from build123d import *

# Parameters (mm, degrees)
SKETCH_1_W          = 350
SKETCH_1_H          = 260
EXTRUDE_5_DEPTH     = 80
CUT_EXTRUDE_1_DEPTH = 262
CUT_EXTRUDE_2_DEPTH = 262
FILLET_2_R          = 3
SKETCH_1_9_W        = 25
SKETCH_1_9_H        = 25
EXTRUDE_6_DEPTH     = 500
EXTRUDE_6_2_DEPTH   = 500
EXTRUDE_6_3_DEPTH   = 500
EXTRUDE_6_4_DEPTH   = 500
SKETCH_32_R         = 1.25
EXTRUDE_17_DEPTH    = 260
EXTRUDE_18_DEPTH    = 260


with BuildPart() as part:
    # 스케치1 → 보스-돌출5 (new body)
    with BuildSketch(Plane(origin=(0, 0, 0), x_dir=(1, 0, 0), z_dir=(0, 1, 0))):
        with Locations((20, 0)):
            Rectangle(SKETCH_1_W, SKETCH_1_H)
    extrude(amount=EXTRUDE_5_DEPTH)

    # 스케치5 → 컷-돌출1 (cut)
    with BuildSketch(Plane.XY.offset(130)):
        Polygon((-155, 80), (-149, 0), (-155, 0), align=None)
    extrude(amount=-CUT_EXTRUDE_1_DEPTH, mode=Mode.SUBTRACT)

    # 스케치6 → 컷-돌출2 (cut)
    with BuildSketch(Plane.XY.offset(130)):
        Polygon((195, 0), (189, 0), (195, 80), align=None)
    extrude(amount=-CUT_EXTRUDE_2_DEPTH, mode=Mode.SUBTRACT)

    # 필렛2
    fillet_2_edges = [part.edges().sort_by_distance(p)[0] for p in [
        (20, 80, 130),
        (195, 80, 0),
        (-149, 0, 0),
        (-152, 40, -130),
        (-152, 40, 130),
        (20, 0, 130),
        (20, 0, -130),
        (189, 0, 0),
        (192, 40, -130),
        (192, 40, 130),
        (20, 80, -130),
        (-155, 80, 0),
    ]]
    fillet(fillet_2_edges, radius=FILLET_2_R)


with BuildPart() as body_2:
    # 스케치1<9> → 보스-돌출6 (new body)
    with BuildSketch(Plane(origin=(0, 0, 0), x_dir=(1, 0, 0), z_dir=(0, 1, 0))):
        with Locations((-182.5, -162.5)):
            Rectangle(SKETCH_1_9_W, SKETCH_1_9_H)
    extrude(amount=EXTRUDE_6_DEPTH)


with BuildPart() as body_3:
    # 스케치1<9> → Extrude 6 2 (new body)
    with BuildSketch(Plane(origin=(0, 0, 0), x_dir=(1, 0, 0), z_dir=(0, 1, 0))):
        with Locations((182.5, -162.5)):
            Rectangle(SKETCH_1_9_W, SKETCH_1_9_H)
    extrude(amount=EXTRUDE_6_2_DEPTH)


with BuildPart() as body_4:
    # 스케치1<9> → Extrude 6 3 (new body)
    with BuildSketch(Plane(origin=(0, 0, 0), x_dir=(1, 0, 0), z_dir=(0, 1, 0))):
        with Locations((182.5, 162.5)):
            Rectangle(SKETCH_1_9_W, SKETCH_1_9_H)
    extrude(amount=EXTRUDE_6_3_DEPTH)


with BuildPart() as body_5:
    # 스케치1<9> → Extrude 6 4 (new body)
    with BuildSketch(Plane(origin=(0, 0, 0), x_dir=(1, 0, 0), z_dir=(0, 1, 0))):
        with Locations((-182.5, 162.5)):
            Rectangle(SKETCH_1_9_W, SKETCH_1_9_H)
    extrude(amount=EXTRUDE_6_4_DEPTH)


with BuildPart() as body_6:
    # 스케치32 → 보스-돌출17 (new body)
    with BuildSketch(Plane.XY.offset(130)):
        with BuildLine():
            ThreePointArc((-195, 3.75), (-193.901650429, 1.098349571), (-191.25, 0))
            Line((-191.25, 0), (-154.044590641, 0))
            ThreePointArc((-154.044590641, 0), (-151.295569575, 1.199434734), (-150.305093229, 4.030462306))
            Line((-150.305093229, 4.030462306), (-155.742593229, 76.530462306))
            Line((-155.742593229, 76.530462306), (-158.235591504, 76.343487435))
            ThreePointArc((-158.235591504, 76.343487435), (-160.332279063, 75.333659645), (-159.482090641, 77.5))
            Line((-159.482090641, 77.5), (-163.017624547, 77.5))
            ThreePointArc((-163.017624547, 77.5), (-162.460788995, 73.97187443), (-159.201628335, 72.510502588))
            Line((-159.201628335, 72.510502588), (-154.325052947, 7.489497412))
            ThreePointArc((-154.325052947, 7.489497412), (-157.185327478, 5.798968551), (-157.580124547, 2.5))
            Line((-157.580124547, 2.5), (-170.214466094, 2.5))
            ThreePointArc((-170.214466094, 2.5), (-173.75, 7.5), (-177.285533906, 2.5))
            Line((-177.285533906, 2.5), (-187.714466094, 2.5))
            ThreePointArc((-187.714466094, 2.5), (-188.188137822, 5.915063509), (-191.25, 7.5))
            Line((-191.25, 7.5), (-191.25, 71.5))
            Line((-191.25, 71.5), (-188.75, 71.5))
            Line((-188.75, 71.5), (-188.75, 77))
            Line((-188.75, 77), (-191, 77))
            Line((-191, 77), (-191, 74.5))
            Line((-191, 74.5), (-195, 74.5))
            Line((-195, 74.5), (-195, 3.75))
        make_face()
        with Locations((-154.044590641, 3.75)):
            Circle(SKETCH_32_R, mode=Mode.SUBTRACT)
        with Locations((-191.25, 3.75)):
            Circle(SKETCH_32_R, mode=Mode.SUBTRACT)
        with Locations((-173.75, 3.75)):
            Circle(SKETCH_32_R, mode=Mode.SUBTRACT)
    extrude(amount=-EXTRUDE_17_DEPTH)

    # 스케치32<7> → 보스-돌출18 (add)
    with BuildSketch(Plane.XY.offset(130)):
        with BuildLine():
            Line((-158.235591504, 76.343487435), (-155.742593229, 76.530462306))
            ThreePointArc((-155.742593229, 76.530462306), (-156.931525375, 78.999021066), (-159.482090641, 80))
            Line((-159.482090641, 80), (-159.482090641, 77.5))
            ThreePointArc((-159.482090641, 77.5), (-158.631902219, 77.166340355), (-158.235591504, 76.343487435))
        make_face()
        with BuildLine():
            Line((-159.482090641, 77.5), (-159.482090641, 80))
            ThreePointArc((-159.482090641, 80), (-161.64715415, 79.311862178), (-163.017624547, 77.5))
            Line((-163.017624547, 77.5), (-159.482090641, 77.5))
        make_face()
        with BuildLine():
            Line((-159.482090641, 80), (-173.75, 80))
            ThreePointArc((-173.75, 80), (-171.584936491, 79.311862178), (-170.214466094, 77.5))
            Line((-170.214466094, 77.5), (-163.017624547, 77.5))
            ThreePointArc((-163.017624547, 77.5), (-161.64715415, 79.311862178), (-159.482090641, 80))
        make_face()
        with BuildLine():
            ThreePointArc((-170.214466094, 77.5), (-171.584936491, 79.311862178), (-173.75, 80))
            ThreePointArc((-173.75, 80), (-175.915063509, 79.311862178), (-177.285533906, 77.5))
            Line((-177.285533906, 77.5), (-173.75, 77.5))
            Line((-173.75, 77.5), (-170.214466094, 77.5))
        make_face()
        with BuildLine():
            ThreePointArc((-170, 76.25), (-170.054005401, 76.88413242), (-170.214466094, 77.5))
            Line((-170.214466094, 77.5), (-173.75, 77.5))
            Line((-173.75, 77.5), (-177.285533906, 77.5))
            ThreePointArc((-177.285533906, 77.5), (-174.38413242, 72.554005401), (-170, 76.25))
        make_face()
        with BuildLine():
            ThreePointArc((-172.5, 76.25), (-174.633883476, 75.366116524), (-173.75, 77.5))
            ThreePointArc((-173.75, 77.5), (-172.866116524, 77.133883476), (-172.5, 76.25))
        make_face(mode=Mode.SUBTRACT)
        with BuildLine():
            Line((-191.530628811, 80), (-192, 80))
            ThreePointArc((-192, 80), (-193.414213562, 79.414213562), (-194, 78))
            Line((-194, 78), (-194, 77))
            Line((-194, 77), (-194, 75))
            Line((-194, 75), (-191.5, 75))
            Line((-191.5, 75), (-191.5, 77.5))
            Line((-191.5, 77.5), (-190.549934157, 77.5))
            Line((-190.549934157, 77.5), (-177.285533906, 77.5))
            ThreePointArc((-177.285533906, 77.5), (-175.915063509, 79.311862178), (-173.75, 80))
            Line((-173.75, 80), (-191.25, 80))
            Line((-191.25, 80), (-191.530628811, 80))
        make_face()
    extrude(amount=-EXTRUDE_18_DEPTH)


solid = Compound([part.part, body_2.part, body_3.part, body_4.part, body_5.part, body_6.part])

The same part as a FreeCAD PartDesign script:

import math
import FreeCAD as App
import Part
import Sketcher
Q = App.Units.Quantity


def add_polygon(sketch, points):
    """Adds a closed chain of lines whose ends are joined by coincident constraints."""
    first, n = sketch.GeometryCount, len(points)
    for a, b in zip(points, points[1:] + points[:1]):
        sketch.addGeometry(Part.LineSegment(App.Vector(*a, 0), App.Vector(*b, 0)), False)
    for i in range(n):
        sketch.addConstraint(Sketcher.Constraint("Coincident", first + i, 2, first + (i + 1) % n, 1))

doc = App.newDocument("Part")
body = doc.addObject("PartDesign::Body", "Body")

# Sketch on XZ plane
sketch1 = body.newObject("Sketcher::SketchObject", "Sketch")
sketch1.AttachmentSupport = (doc.getObject("XZ_Plane"), [""])
sketch1.MapMode = "FlatFace"
add_polygon(sketch1, [(-155, -130), (-155, 130), (195, 130), (195, -130)])  # lines 0-3
sketch1.addConstraint([
    Sketcher.Constraint("Vertical", 0),
    Sketcher.Constraint("Horizontal", 1),
    Sketcher.Constraint("Vertical", 2),
    Sketcher.Constraint("Horizontal", 3),
    Sketcher.Constraint("DistanceX", 1, 1, 1, 2, Q("350 mm")),
    Sketcher.Constraint("DistanceY", 0, 1, 0, 2, Q("260 mm")),
    Sketcher.Constraint("DistanceX", 0, 2, -1, 1, Q("155 mm")),
    Sketcher.Constraint("DistanceY", -1, 1, 0, 2, Q("130 mm")),
])
pad1 = body.newObject("PartDesign::Pad", "Pad")
pad1.Profile = sketch1
pad1.Length = 80
pad1.Reversed = True

# Sketch on XY plane
sketch2 = body.newObject("Sketcher::SketchObject", "Sketch001")
sketch2.AttachmentSupport = (doc.getObject("XY_Plane"), [""])
sketch2.MapMode = "FlatFace"
sketch2.AttachmentOffset = App.Placement(App.Vector(0, 0, 130), App.Rotation())
add_polygon(sketch2, [(-149, 0), (-155, 80), (-155, 0)])  # lines 0-2
sketch2.addConstraint([
    Sketcher.Constraint("Vertical", 1),
    Sketcher.Constraint("Horizontal", 2),
    Sketcher.Constraint("PointOnObject", 1, 2, -1),
    Sketcher.Constraint("DistanceX", 2, 1, 2, 2, Q("6 mm")),
    Sketcher.Constraint("DistanceY", 1, 2, 1, 1, Q("80 mm")),
    Sketcher.Constraint("DistanceX", 0, 2, -1, 1, Q("155 mm")),
])
pocket1 = body.newObject("PartDesign::Pocket", "Pocket")
pocket1.Profile = sketch2
pocket1.Length = 262

# Sketch on XY plane
sketch3 = body.newObject("Sketcher::SketchObject", "Sketch002")
sketch3.AttachmentSupport = (doc.getObject("XY_Plane"), [""])
sketch3.MapMode = "FlatFace"
sketch3.AttachmentOffset = App.Placement(App.Vector(0, 0, 130), App.Rotation())
add_polygon(sketch3, [(189, 0), (195, 0), (195, 80)])  # lines 0-2
sketch3.addConstraint([
    Sketcher.Constraint("Horizontal", 0),
    Sketcher.Constraint("Vertical", 1),
    Sketcher.Constraint("PointOnObject", 0, 2, -1),
    Sketcher.Constraint("DistanceX", 0, 1, 0, 2, Q("6 mm")),
    Sketcher.Constraint("DistanceY", 1, 1, 1, 2, Q("80 mm")),
    Sketcher.Constraint("DistanceX", -1, 1, 0, 2, Q("195 mm")),
])
pocket2 = body.newObject("PartDesign::Pocket", "Pocket001")
pocket2.Profile = sketch3
pocket2.Length = 262
doc.recompute()

fillet = body.newObject("PartDesign::Fillet", "Fillet")
fillet.Base = (pocket2, ["Edge1"])
fillet.UseAllEdges = True
fillet.Radius = 3
body2 = doc.addObject("PartDesign::Body", "Body001")

# Sketch on XZ plane
sketch4 = body2.newObject("Sketcher::SketchObject", "Sketch003")
sketch4.AttachmentSupport = (doc.getObject("XZ_Plane001"), [""])
sketch4.MapMode = "FlatFace"
add_polygon(sketch4, [(-195, 150), (-195, 175), (-170, 175), (-170, 150)])  # lines 0-3
sketch4.addConstraint([
    Sketcher.Constraint("Vertical", 0),
    Sketcher.Constraint("Horizontal", 1),
    Sketcher.Constraint("Vertical", 2),
    Sketcher.Constraint("Horizontal", 3),
    Sketcher.Constraint("Equal", 3, 0),
    Sketcher.Constraint("DistanceX", 1, 1, 1, 2, Q("25 mm")),
    Sketcher.Constraint("DistanceX", 0, 2, -1, 1, Q("195 mm")),
    Sketcher.Constraint("DistanceY", -1, 1, 0, 2, Q("175 mm")),
])
pad2 = body2.newObject("PartDesign::Pad", "Pad001")
pad2.Profile = sketch4
pad2.Length = 500
pad2.Reversed = True
body3 = doc.addObject("PartDesign::Body", "Body002")

# Sketch on XZ plane
sketch5 = body3.newObject("Sketcher::SketchObject", "Sketch004")
sketch5.AttachmentSupport = (doc.getObject("XZ_Plane002"), [""])
sketch5.MapMode = "FlatFace"
add_polygon(sketch5, [(170, 150), (170, 175), (195, 175), (195, 150)])  # lines 0-3
sketch5.addConstraint([
    Sketcher.Constraint("Vertical", 0),
    Sketcher.Constraint("Horizontal", 1),
    Sketcher.Constraint("Vertical", 2),
    Sketcher.Constraint("Horizontal", 3),
    Sketcher.Constraint("Equal", 3, 0),
    Sketcher.Constraint("DistanceX", 1, 1, 1, 2, Q("25 mm")),
    Sketcher.Constraint("DistanceX", -1, 1, 0, 2, Q("170 mm")),
    Sketcher.Constraint("DistanceY", -1, 1, 0, 2, Q("175 mm")),
])
pad3 = body3.newObject("PartDesign::Pad", "Pad002")
pad3.Profile = sketch5
pad3.Length = 500
pad3.Reversed = True
body4 = doc.addObject("PartDesign::Body", "Body003")

# Sketch on XZ plane
sketch6 = body4.newObject("Sketcher::SketchObject", "Sketch005")
sketch6.AttachmentSupport = (doc.getObject("XZ_Plane003"), [""])
sketch6.MapMode = "FlatFace"
add_polygon(sketch6, [(170, -175), (170, -150), (195, -150), (195, -175)])  # lines 0-3
sketch6.addConstraint([
    Sketcher.Constraint("Vertical", 0),
    Sketcher.Constraint("Horizontal", 1),
    Sketcher.Constraint("Vertical", 2),
    Sketcher.Constraint("Horizontal", 3),
    Sketcher.Constraint("Equal", 3, 0),
    Sketcher.Constraint("DistanceX", 1, 1, 1, 2, Q("25 mm")),
    Sketcher.Constraint("DistanceX", -1, 1, 0, 2, Q("170 mm")),
    Sketcher.Constraint("DistanceY", 0, 2, -1, 1, Q("150 mm")),
])
pad4 = body4.newObject("PartDesign::Pad", "Pad003")
pad4.Profile = sketch6
pad4.Length = 500
pad4.Reversed = True
body5 = doc.addObject("PartDesign::Body", "Body004")

# Sketch on XZ plane
sketch7 = body5.newObject("Sketcher::SketchObject", "Sketch006")
sketch7.AttachmentSupport = (doc.getObject("XZ_Plane004"), [""])
sketch7.MapMode = "FlatFace"
add_polygon(sketch7, [(-195, -175), (-195, -150), (-170, -150), (-170, -175)])  # lines 0-3
sketch7.addConstraint([
    Sketcher.Constraint("Vertical", 0),
    Sketcher.Constraint("Horizontal", 1),
    Sketcher.Constraint("Vertical", 2),
    Sketcher.Constraint("Horizontal", 3),
    Sketcher.Constraint("Equal", 3, 0),
    Sketcher.Constraint("DistanceX", 1, 1, 1, 2, Q("25 mm")),
    Sketcher.Constraint("DistanceX", 0, 2, -1, 1, Q("195 mm")),
    Sketcher.Constraint("DistanceY", 0, 2, -1, 1, Q("150 mm")),
])
pad5 = body5.newObject("PartDesign::Pad", "Pad004")
pad5.Profile = sketch7
pad5.Length = 500
pad5.Reversed = True
body6 = doc.addObject("PartDesign::Body", "Body005")

# Sketch on XY plane
sketch8 = body6.newObject("Sketcher::SketchObject", "Sketch007")
sketch8.AttachmentSupport = (doc.getObject("XY_Plane005"), [""])
sketch8.MapMode = "FlatFace"
sketch8.AttachmentOffset = App.Placement(App.Vector(0, 0, 130), App.Rotation())
sketch8.addGeometry([
    Part.ArcOfCircle(Part.Circle(App.Vector(-191.2, 3.8, 0), App.Vector(0, 0, 1), 3.8), math.radians(-180), math.radians(-90)),  # 0
    Part.LineSegment(App.Vector(-191.2, 0, 0), App.Vector(-154, 0, 0)),  # 1
    Part.ArcOfCircle(Part.Circle(App.Vector(-154, 3.8, 0), App.Vector(0, 0, 1), 3.8), math.radians(-90), math.radians(4)),  # 2
    Part.LineSegment(App.Vector(-150.3, 4, 0), App.Vector(-155.7, 76.5, 0)),  # 3
    Part.LineSegment(App.Vector(-155.7, 76.5, 0), App.Vector(-158.2, 76.3, 0)),  # 4
    Part.ArcOfCircle(Part.Circle(App.Vector(-159.5, 76.2, 0), App.Vector(0, 0, 1), 1.2), math.radians(90), math.radians(364)),  # 5
    Part.LineSegment(App.Vector(-159.5, 77.5, 0), App.Vector(-163, 77.5, 0)),  # 6
    Part.ArcOfCircle(Part.Circle(App.Vector(-159.5, 76.3, 0), App.Vector(0, 0, 1), 3.8), math.radians(161), math.radians(274)),  # 7
    Part.LineSegment(App.Vector(-159.2, 72.5, 0), App.Vector(-154.3, 7.5, 0)),  # 8
    Part.ArcOfCircle(Part.Circle(App.Vector(-154, 3.8, 0), App.Vector(0, 0, 1), 3.8), math.radians(94), math.radians(199)),  # 9
    Part.LineSegment(App.Vector(-157.6, 2.5, 0), App.Vector(-170.2, 2.5, 0)),  # 10
    Part.ArcOfCircle(Part.Circle(App.Vector(-173.8, 3.8, 0), App.Vector(0, 0, 1), 3.8), math.radians(-19), math.radians(199)),  # 11
    Part.LineSegment(App.Vector(-177.3, 2.5, 0), App.Vector(-187.7, 2.5, 0)),  # 12
    Part.ArcOfCircle(Part.Circle(App.Vector(-191.3, 3.7, 0), App.Vector(0, 0, 1), 3.8), math.radians(-19), math.radians(90)),  # 13
    Part.LineSegment(App.Vector(-191.2, 7.5, 0), App.Vector(-191.2, 71.5, 0)),  # 14
    Part.LineSegment(App.Vector(-191.2, 71.5, 0), App.Vector(-188.8, 71.5, 0)),  # 15
    Part.LineSegment(App.Vector(-188.8, 71.5, 0), App.Vector(-188.8, 77, 0)),  # 16
    Part.LineSegment(App.Vector(-188.8, 77, 0), App.Vector(-191, 77, 0)),  # 17
    Part.LineSegment(App.Vector(-191, 77, 0), App.Vector(-191, 74.5, 0)),  # 18
    Part.LineSegment(App.Vector(-191, 74.5, 0), App.Vector(-195, 74.5, 0)),  # 19
    Part.LineSegment(App.Vector(-195, 74.5, 0), App.Vector(-195, 3.8, 0)),  # 20
    Part.Circle(App.Vector(-191.2, 3.8, 0), App.Vector(0, 0, 1), 1.2),  # 21
    Part.Circle(App.Vector(-173.8, 3.8, 0), App.Vector(0, 0, 1), 1.2),  # 22
    Part.Circle(App.Vector(-154, 3.8, 0), App.Vector(0, 0, 1), 1.2),  # 23
], False)
sketch8.addConstraint([
    Sketcher.Constraint("Tangent", 0, 2, 1, 1),
    Sketcher.Constraint("Tangent", 1, 2, 2, 1),
    Sketcher.Constraint("Tangent", 2, 2, 3, 1),
    Sketcher.Constraint("Coincident", 3, 2, 4, 1),
    Sketcher.Constraint("Coincident", 4, 2, 5, 2),
    Sketcher.Constraint("Tangent", 5, 1, 6, 1),
    Sketcher.Constraint("Coincident", 6, 2, 7, 1),
    Sketcher.Constraint("Coincident", 7, 2, 8, 1),
    Sketcher.Constraint("Coincident", 8, 2, 9, 1),
    Sketcher.Constraint("Coincident", 9, 2, 10, 1),
    Sketcher.Constraint("Coincident", 10, 2, 11, 1),
    Sketcher.Constraint("Coincident", 11, 2, 12, 1),
    Sketcher.Constraint("Coincident", 12, 2, 13, 1),
    Sketcher.Constraint("Coincident", 13, 2, 14, 1),
    Sketcher.Constraint("Coincident", 14, 2, 15, 1),
    Sketcher.Constraint("Coincident", 15, 2, 16, 1),
    Sketcher.Constraint("Coincident", 16, 2, 17, 1),
    Sketcher.Constraint("Coincident", 17, 2, 18, 1),
    Sketcher.Constraint("Coincident", 18, 2, 19, 1),
    Sketcher.Constraint("Coincident", 19, 2, 20, 1),
    Sketcher.Constraint("Tangent", 20, 2, 0, 1),
    Sketcher.Constraint("Horizontal", 1),
    Sketcher.Constraint("Horizontal", 6),
    Sketcher.Constraint("Horizontal", 10),
    Sketcher.Constraint("Horizontal", 12),
    Sketcher.Constraint("Vertical", 14),
    Sketcher.Constraint("Horizontal", 15),
    Sketcher.Constraint("Vertical", 16),
    Sketcher.Constraint("Horizontal", 17),
    Sketcher.Constraint("Vertical", 18),
    Sketcher.Constraint("Horizontal", 19),
    Sketcher.Constraint("Vertical", 20),
    Sketcher.Constraint("Coincident", 7, 3, 5, 3),
    Sketcher.Constraint("Coincident", 9, 3, 2, 3),
    Sketcher.Constraint("Coincident", 13, 3, 0, 3),
    Sketcher.Constraint("Coincident", 21, 3, 0, 3),
    Sketcher.Constraint("Coincident", 22, 3, 11, 3),
    Sketcher.Constraint("Coincident", 23, 3, 2, 3),
    Sketcher.Constraint("Equal", 0, 2),
    Sketcher.Constraint("Equal", 2, 7),
    Sketcher.Constraint("Equal", 7, 9),
    Sketcher.Constraint("Equal", 9, 11),
    Sketcher.Constraint("Equal", 11, 13),
    Sketcher.Constraint("Equal", 5, 21),
    Sketcher.Constraint("Equal", 21, 22),
    Sketcher.Constraint("Equal", 22, 23),
    Sketcher.Constraint("PointOnObject", 0, 2, -1),
    Sketcher.Constraint("Perpendicular", 3, 4),
    Sketcher.Constraint("Perpendicular", 4, 8),
    Sketcher.Constraint("Horizontal", 9, 3, 11, 3),
    Sketcher.Constraint("Horizontal", 10, 2, 11, 2),
    Sketcher.Constraint("Vertical", 0, 2, 13, 2),
    Sketcher.Constraint("Equal", 15, 18),
    Sketcher.Constraint("Diameter", 21, Q("2.5 mm")),
    Sketcher.Constraint("DistanceX", 19, 2, 19, 1, Q("4 mm")),
    Sketcher.Constraint("DistanceY", 14, 1, 14, 2, Q("64 mm")),
    Sketcher.Constraint("Radius", 0, Q("3.75 mm")),
    Sketcher.Constraint("DistanceX", 15, 1, 15, 2, Q("2.5 mm")),
    Sketcher.Constraint("DistanceY", 16, 1, 16, 2, Q("5.5 mm")),
    Sketcher.Constraint("DistanceX", 17, 2, -1, 1, Q("191 mm")),
    Sketcher.Constraint("DistanceY", 12, 2, 13, 2, Q("5 mm")),
    Sketcher.Constraint("DistanceY", 14, 2, 6, 2, Q("6 mm")),
    Sketcher.Constraint("Distance", 4, Q("2.5 mm")),
    Sketcher.Constraint("DistanceX", 0, 3, 11, 3, Q("17.5 mm")),
    Sketcher.Constraint("DistanceY", 2, 2, 3, 2, Q("72.5 mm")),
    Sketcher.Constraint("DistanceX", 4, 2, 2, 3, Q("4.191001 mm")),
    Sketcher.Constraint("DistanceX", 1, 1, 1, 2, Q("37.205409 mm")),
    Sketcher.Constraint("DistanceX", 7, 2, -1, 1, Q("159.201628 mm")),
])
pad6 = body6.newObject("PartDesign::Pad", "Pad005")
pad6.Profile = sketch8
pad6.Length = 260
pad6.Reversed = True

# Sketch on XY plane
sketch9 = body6.newObject("Sketcher::SketchObject", "Sketch008")
sketch9.AttachmentSupport = (doc.getObject("XY_Plane005"), [""])
sketch9.MapMode = "FlatFace"
sketch9.AttachmentOffset = App.Placement(App.Vector(0, 0, 130), App.Rotation())
sketch9.addGeometry([
    Part.LineSegment(App.Vector(-158.2, 76.3, 0), App.Vector(-155.7, 76.5, 0)),  # 0
    Part.ArcOfCircle(Part.Circle(App.Vector(-159.5, 76.2, 0), App.Vector(0, 0, 1), 3.8), math.radians(4), math.radians(90)),  # 1
    Part.LineSegment(App.Vector(-159.5, 80, 0), App.Vector(-192, 80, 0)),  # 2
    Part.ArcOfCircle(Part.Circle(App.Vector(-192, 78, 0), App.Vector(0, 0, 1), 2), math.radians(90), math.radians(180)),  # 3
    Part.LineSegment(App.Vector(-194, 78, 0), App.Vector(-194, 75, 0)),  # 4
    Part.LineSegment(App.Vector(-194, 75, 0), App.Vector(-191.5, 75, 0)),  # 5
    Part.LineSegment(App.Vector(-191.5, 75, 0), App.Vector(-191.5, 77.5, 0)),  # 6
    Part.LineSegment(App.Vector(-191.5, 77.5, 0), App.Vector(-177.3, 77.5, 0)),  # 7
    Part.ArcOfCircle(Part.Circle(App.Vector(-173.8, 76.2, 0), App.Vector(0, 0, 1), 3.8), math.radians(161), math.radians(360)),  # 8
    Part.ArcOfCircle(Part.Circle(App.Vector(-173.7, 76.3, 0), App.Vector(0, 0, 1), 3.7), math.radians(0), math.radians(19.47)),  # 9
    Part.LineSegment(App.Vector(-170.2, 77.5, 0), App.Vector(-159.5, 77.5, 0)),  # 10
    Part.ArcOfCircle(Part.Circle(App.Vector(-159.5, 76.2, 0), App.Vector(0, 0, 1), 1.2), math.radians(4), math.radians(90)),  # 11
    Part.ArcOfCircle(Part.Circle(App.Vector(-173.8, 76.2, 0), App.Vector(0, 0, 1), 1.3), math.radians(0), math.radians(90)),  # 12
    Part.ArcOfCircle(Part.Circle(App.Vector(-173.8, 76.2, 0), App.Vector(0, 0, 1), 1.2), math.radians(90), math.radians(360)),  # 13
], False)
sketch9.addConstraint([
    Sketcher.Constraint("Coincident", 0, 2, 1, 1),
    Sketcher.Constraint("Tangent", 1, 2, 2, 1),
    Sketcher.Constraint("Tangent", 2, 2, 3, 1),
    Sketcher.Constraint("Tangent", 3, 2, 4, 1),
    Sketcher.Constraint("Coincident", 4, 2, 5, 1),
    Sketcher.Constraint("Coincident", 5, 2, 6, 1),
    Sketcher.Constraint("Coincident", 6, 2, 7, 1),
    Sketcher.Constraint("Coincident", 7, 2, 8, 1),
    Sketcher.Constraint("Tangent", 8, 2, 9, 1),
    Sketcher.Constraint("Coincident", 9, 2, 10, 1),
    Sketcher.Constraint("Tangent", 10, 2, 11, 2),
    Sketcher.Constraint("Coincident", 11, 1, 0, 1),
    Sketcher.Constraint("Tangent", 12, 1, 13, 2),
    Sketcher.Constraint("Coincident", 13, 1, 12, 2),
    Sketcher.Constraint("Horizontal", 2),
    Sketcher.Constraint("Vertical", 4),
    Sketcher.Constraint("Horizontal", 5),
    Sketcher.Constraint("Vertical", 6),
    Sketcher.Constraint("Horizontal", 7),
    Sketcher.Constraint("Horizontal", 10),
    Sketcher.Constraint("Coincident", 11, 3, 1, 3),
    Sketcher.Constraint("Coincident", 12, 3, 8, 3),
    Sketcher.Constraint("Equal", 1, 8),
    Sketcher.Constraint("Equal", 8, 9),
    Sketcher.Constraint("Equal", 11, 12),
    Sketcher.Constraint("Horizontal", 1, 3, 8, 3),
    Sketcher.Constraint("Horizontal", 13, 3, 8, 2),
    Sketcher.Constraint("Horizontal", 7, 2, 9, 2),
    Sketcher.Constraint("Horizontal", 8, 2, 12, 1),
    Sketcher.Constraint("Vertical", 12, 3, 13, 1),
    Sketcher.Constraint("Equal", 5, 6),
    Sketcher.Constraint("Radius", 3, Q("2 mm")),
    Sketcher.Constraint("DistanceY", 4, 2, 4, 1, Q("3 mm")),
    Sketcher.Constraint("Radius", 1, Q("3.75 mm")),
    Sketcher.Constraint("Radius", 11, Q("1.25 mm")),
    Sketcher.Constraint("DistanceX", 3, 3, -1, 1, Q("192 mm")),
    Sketcher.Constraint("DistanceY", -1, 1, 3, 3, Q("78 mm")),
    Sketcher.Constraint("DistanceX", 8, 2, -1, 1, Q("170 mm")),
    Sketcher.Constraint("DistanceX", 11, 1, 0, 2, Q("2.492998 mm")),
    Sketcher.Constraint("DistanceX", 2, 2, 2, 1, Q("32.517909 mm")),
    Sketcher.Constraint("DistanceX", 11, 3, 11, 1, Q("1.246499 mm")),
])
pad7 = body6.newObject("PartDesign::Pad", "Pad006")
pad7.Profile = sketch9
pad7.Length = 260
pad7.Reversed = True

doc.recompute()
